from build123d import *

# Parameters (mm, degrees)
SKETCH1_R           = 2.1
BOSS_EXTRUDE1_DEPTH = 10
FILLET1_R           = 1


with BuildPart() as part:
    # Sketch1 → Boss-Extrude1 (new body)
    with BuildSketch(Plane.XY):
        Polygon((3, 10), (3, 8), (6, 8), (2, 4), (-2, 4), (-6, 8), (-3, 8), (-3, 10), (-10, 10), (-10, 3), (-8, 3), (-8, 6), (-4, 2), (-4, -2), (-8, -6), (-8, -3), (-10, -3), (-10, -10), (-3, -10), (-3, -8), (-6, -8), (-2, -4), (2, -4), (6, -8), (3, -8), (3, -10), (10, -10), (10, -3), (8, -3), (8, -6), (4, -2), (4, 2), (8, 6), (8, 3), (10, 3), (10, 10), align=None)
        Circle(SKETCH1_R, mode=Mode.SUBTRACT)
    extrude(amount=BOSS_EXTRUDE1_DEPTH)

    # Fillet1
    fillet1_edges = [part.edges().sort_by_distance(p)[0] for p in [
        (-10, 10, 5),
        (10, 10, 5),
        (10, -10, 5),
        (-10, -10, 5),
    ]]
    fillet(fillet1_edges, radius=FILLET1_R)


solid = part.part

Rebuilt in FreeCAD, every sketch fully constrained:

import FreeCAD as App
import Part
import Sketcher

V = App.Vector


def edges_at(feature, points):
    """Names of the edges that pass closest to the given points."""
    edges = feature.Shape.Edges
    near = lambda p: min(range(len(edges)), key=lambda i: edges[i].distToShape(Part.Vertex(*p))[0])
    return sorted({f"Edge{near(p) + 1}" for p in points})

doc = App.newDocument("Part")
body = doc.addObject("PartDesign::Body", "Body")

# Sketch on XY plane
sketch1 = body.newObject("Sketcher::SketchObject", "Sketch")
sketch1.AttachmentSupport = (doc.getObject("XY_Plane"), [""])
sketch1.MapMode = "FlatFace"
sketch1.addGeometry([
    Part.LineSegment(V(3, 10, 0), V(3, 8, 0)),  # 0
    Part.LineSegment(V(3, 8, 0), V(6, 8, 0)),  # 1
    Part.LineSegment(V(6, 8, 0), V(2, 4, 0)),  # 2
    Part.LineSegment(V(2, 4, 0), V(-2, 4, 0)),  # 3
    Part.LineSegment(V(-2, 4, 0), V(-6, 8, 0)),  # 4
    Part.LineSegment(V(-6, 8, 0), V(-3, 8, 0)),  # 5
    Part.LineSegment(V(-3, 8, 0), V(-3, 10, 0)),  # 6
    Part.LineSegment(V(-3, 10, 0), V(-10, 10, 0)),  # 7
    Part.LineSegment(V(-10, 10, 0), V(-10, 3, 0)),  # 8
    Part.LineSegment(V(-10, 3, 0), V(-8, 3, 0)),  # 9
    Part.LineSegment(V(-8, 3, 0), V(-8, 6, 0)),  # 10
    Part.LineSegment(V(-8, 6, 0), V(-4, 2, 0)),  # 11
    Part.LineSegment(V(-4, 2, 0), V(-4, -2, 0)),  # 12
    Part.LineSegment(V(-4, -2, 0), V(-8, -6, 0)),  # 13
    Part.LineSegment(V(-8, -6, 0), V(-8, -3, 0)),  # 14
    Part.LineSegment(V(-8, -3, 0), V(-10, -3, 0)),  # 15
    Part.LineSegment(V(-10, -3, 0), V(-10, -10, 0)),  # 16
    Part.LineSegment(V(-10, -10, 0), V(-3, -10, 0)),  # 17
    Part.LineSegment(V(-3, -10, 0), V(-3, -8, 0)),  # 18
    Part.LineSegment(V(-3, -8, 0), V(-6, -8, 0)),  # 19
    Part.LineSegment(V(-6, -8, 0), V(-2, -4, 0)),  # 20
    Part.LineSegment(V(-2, -4, 0), V(2, -4, 0)),  # 21
    Part.LineSegment(V(2, -4, 0), V(6, -8, 0)),  # 22
    Part.LineSegment(V(6, -8, 0), V(3, -8, 0)),  # 23
    Part.LineSegment(V(3, -8, 0), V(3, -10, 0)),  # 24
    Part.LineSegment(V(3, -10, 0), V(10, -10, 0)),  # 25
    Part.LineSegment(V(10, -10, 0), V(10, -3, 0)),  # 26
    Part.LineSegment(V(10, -3, 0), V(8, -3, 0)),  # 27
    Part.LineSegment(V(8, -3, 0), V(8, -6, 0)),  # 28
    Part.LineSegment(V(8, -6, 0), V(4, -2, 0)),  # 29
    Part.LineSegment(V(4, -2, 0), V(4, 2, 0)),  # 30
    Part.LineSegment(V(4, 2, 0), V(8, 6, 0)),  # 31
    Part.LineSegment(V(8, 6, 0), V(8, 3, 0)),  # 32
    Part.LineSegment(V(8, 3, 0), V(10, 3, 0)),  # 33
    Part.LineSegment(V(10, 3, 0), V(10, 10, 0)),  # 34
    Part.LineSegment(V(10, 10, 0), V(3, 10, 0)),  # 35
    Part.Circle(V(0, 0, 0), V(0, 0, 1), 2.1),  # 36
], False)
sketch1.addConstraint([
    Sketcher.Constraint("Coincident", 0, 2, 1, 1),
    Sketcher.Constraint("Coincident", 1, 2, 2, 1),
    Sketcher.Constraint("Coincident", 2, 2, 3, 1),
    Sketcher.Constraint("Coincident", 3, 2, 4, 1),
    Sketcher.Constraint("Coincident", 4, 2, 5, 1),
    Sketcher.Constraint("Coincident", 5, 2, 6, 1),
    Sketcher.Constraint("Coincident", 6, 2, 7, 1),
    Sketcher.Constraint("Coincident", 7, 2, 8, 1),
    Sketcher.Constraint("Coincident", 8, 2, 9, 1),
    Sketcher.Constraint("Coincident", 9, 2, 10, 1),
    Sketcher.Constraint("Coincident", 10, 2, 11, 1),
    Sketcher.Constraint("Coincident", 11, 2, 12, 1),
    Sketcher.Constraint("Coincident", 12, 2, 13, 1),
    Sketcher.Constraint("Coincident", 13, 2, 14, 1),
    Sketcher.Constraint("Coincident", 14, 2, 15, 1),
    Sketcher.Constraint("Coincident", 15, 2, 16, 1),
    Sketcher.Constraint("Coincident", 16, 2, 17, 1),
    Sketcher.Constraint("Coincident", 17, 2, 18, 1),
    Sketcher.Constraint("Coincident", 18, 2, 19, 1),
    Sketcher.Constraint("Coincident", 19, 2, 20, 1),
    Sketcher.Constraint("Coincident", 20, 2, 21, 1),
    Sketcher.Constraint("Coincident", 21, 2, 22, 1),
    Sketcher.Constraint("Coincident", 22, 2, 23, 1),
    Sketcher.Constraint("Coincident", 23, 2, 24, 1),
    Sketcher.Constraint("Coincident", 24, 2, 25, 1),
    Sketcher.Constraint("Coincident", 25, 2, 26, 1),
    Sketcher.Constraint("Coincident", 26, 2, 27, 1),
    Sketcher.Constraint("Coincident", 27, 2, 28, 1),
    Sketcher.Constraint("Coincident", 28, 2, 29, 1),
    Sketcher.Constraint("Coincident", 29, 2, 30, 1),
    Sketcher.Constraint("Coincident", 30, 2, 31, 1),
    Sketcher.Constraint("Coincident", 31, 2, 32, 1),
    Sketcher.Constraint("Coincident", 32, 2, 33, 1),
    Sketcher.Constraint("Coincident", 33, 2, 34, 1),
    Sketcher.Constraint("Coincident", 34, 2, 35, 1),
    Sketcher.Constraint("Coincident", 35, 2, 0, 1),
    Sketcher.Constraint("Vertical", 0),
    Sketcher.Constraint("Horizontal", 1),
    Sketcher.Constraint("Horizontal", 3),
    Sketcher.Constraint("Horizontal", 5),
    Sketcher.Constraint("Vertical", 6),
    Sketcher.Constraint("Horizontal", 7),
    Sketcher.Constraint("Vertical", 8),
    Sketcher.Constraint("Horizontal", 9),
    Sketcher.Constraint("Vertical", 10),
    Sketcher.Constraint("Vertical", 12),
    Sketcher.Constraint("Vertical", 14),
    Sketcher.Constraint("Horizontal", 15),
    Sketcher.Constraint("Vertical", 16),
    Sketcher.Constraint("Horizontal", 17),
    Sketcher.Constraint("Vertical", 18),
    Sketcher.Constraint("Horizontal", 19),
    Sketcher.Constraint("Horizontal", 21),
    Sketcher.Constraint("Horizontal", 23),
    Sketcher.Constraint("Vertical", 24),
    Sketcher.Constraint("Horizontal", 25),
    Sketcher.Constraint("Vertical", 26),
    Sketcher.Constraint("Horizontal", 27),
    Sketcher.Constraint("Vertical", 28),
    Sketcher.Constraint("Vertical", 30),
    Sketcher.Constraint("Vertical", 32),
    Sketcher.Constraint("Horizontal", 33),
    Sketcher.Constraint("Vertical", 34),
    Sketcher.Constraint("Horizontal", 35),
    Sketcher.Constraint("Coincident", 36, 3, -1, 1),
    Sketcher.Constraint("Symmetric", 0, 2, 18, 2, -1, 1),
    Sketcher.Constraint("Symmetric", 2, 2, 20, 2, -1, 1),
    Sketcher.Constraint("Symmetric", 4, 2, 22, 2, -1, 1),
    Sketcher.Constraint("Symmetric", 6, 2, 24, 2, -1, 1),
    Sketcher.Constraint("Symmetric", 8, 2, 26, 2, -1, 1),
    Sketcher.Constraint("Symmetric", 10, 2, 28, 2, -1, 1),
    Sketcher.Constraint("Symmetric", 11, 2, 29, 2, -1, 1),
    Sketcher.Constraint("Symmetric", 13, 2, 31, 2, -1, 1),
    Sketcher.Constraint("Symmetric", 15, 2, 33, 2, -1, 1),
    Sketcher.Constraint("Symmetric", 1, 2, 4, 2, -2),
    Sketcher.Constraint("Symmetric", 17, 2, 24, 2, -2),
    Sketcher.Constraint("Symmetric", 15, 2, 26, 2, -2),
    Sketcher.Constraint("Symmetric", 13, 2, 28, 2, -2),
    Sketcher.Constraint("Perpendicular", 2, 4),
    Sketcher.Constraint("Parallel", 4, 11),
    Sketcher.Constraint("Perpendicular", 11, 13),
    Sketcher.Constraint("Parallel", 13, 20),
    Sketcher.Constraint("Perpendicular", 20, 22),
    Sketcher.Constraint("Perpendicular", 29, 31),
    Sketcher.Constraint("Horizontal", 12, 2, 29, 2),
    Sketcher.Constraint("Horizontal", 7, 2, 34, 2),
    Sketcher.Constraint("Equal", 33, 0),
    Sketcher.Constraint("Equal", 35, 8),
    Sketcher.Constraint("Equal", 23, 10),
    Sketcher.Constraint("Equal", 21, 12),
    Sketcher.Constraint("Equal", 4, 11),
    Sketcher.Constraint("Diameter", 36, 4.2),
    Sketcher.Constraint("DistanceX", 1, 1, 1, 2, 3.0),
    Sketcher.Constraint("DistanceX", 3, 2, 3, 1, 4.0),
    Sketcher.Constraint("DistanceX", 7, 2, 7, 1, 7.0),
    Sketcher.Constraint("DistanceX", 9, 1, 9, 2, 2.0),
    Sketcher.Constraint("DistanceX", -1, 1, 0, 2, 3.0),
])
pad1 = body.newObject("PartDesign::Pad", "Pad")
pad1.Profile = sketch1
pad1.Length = 10
doc.recompute()

fillet = body.newObject("PartDesign::Fillet", "Fillet")
fillet.Base = (pad1, edges_at(pad1, [
    (-10, 10, 5),
    (10, 10, 5),
    (10, -10, 5),
    (-10, -10, 5),
]))
fillet.Radius = 1

doc.recompute()
